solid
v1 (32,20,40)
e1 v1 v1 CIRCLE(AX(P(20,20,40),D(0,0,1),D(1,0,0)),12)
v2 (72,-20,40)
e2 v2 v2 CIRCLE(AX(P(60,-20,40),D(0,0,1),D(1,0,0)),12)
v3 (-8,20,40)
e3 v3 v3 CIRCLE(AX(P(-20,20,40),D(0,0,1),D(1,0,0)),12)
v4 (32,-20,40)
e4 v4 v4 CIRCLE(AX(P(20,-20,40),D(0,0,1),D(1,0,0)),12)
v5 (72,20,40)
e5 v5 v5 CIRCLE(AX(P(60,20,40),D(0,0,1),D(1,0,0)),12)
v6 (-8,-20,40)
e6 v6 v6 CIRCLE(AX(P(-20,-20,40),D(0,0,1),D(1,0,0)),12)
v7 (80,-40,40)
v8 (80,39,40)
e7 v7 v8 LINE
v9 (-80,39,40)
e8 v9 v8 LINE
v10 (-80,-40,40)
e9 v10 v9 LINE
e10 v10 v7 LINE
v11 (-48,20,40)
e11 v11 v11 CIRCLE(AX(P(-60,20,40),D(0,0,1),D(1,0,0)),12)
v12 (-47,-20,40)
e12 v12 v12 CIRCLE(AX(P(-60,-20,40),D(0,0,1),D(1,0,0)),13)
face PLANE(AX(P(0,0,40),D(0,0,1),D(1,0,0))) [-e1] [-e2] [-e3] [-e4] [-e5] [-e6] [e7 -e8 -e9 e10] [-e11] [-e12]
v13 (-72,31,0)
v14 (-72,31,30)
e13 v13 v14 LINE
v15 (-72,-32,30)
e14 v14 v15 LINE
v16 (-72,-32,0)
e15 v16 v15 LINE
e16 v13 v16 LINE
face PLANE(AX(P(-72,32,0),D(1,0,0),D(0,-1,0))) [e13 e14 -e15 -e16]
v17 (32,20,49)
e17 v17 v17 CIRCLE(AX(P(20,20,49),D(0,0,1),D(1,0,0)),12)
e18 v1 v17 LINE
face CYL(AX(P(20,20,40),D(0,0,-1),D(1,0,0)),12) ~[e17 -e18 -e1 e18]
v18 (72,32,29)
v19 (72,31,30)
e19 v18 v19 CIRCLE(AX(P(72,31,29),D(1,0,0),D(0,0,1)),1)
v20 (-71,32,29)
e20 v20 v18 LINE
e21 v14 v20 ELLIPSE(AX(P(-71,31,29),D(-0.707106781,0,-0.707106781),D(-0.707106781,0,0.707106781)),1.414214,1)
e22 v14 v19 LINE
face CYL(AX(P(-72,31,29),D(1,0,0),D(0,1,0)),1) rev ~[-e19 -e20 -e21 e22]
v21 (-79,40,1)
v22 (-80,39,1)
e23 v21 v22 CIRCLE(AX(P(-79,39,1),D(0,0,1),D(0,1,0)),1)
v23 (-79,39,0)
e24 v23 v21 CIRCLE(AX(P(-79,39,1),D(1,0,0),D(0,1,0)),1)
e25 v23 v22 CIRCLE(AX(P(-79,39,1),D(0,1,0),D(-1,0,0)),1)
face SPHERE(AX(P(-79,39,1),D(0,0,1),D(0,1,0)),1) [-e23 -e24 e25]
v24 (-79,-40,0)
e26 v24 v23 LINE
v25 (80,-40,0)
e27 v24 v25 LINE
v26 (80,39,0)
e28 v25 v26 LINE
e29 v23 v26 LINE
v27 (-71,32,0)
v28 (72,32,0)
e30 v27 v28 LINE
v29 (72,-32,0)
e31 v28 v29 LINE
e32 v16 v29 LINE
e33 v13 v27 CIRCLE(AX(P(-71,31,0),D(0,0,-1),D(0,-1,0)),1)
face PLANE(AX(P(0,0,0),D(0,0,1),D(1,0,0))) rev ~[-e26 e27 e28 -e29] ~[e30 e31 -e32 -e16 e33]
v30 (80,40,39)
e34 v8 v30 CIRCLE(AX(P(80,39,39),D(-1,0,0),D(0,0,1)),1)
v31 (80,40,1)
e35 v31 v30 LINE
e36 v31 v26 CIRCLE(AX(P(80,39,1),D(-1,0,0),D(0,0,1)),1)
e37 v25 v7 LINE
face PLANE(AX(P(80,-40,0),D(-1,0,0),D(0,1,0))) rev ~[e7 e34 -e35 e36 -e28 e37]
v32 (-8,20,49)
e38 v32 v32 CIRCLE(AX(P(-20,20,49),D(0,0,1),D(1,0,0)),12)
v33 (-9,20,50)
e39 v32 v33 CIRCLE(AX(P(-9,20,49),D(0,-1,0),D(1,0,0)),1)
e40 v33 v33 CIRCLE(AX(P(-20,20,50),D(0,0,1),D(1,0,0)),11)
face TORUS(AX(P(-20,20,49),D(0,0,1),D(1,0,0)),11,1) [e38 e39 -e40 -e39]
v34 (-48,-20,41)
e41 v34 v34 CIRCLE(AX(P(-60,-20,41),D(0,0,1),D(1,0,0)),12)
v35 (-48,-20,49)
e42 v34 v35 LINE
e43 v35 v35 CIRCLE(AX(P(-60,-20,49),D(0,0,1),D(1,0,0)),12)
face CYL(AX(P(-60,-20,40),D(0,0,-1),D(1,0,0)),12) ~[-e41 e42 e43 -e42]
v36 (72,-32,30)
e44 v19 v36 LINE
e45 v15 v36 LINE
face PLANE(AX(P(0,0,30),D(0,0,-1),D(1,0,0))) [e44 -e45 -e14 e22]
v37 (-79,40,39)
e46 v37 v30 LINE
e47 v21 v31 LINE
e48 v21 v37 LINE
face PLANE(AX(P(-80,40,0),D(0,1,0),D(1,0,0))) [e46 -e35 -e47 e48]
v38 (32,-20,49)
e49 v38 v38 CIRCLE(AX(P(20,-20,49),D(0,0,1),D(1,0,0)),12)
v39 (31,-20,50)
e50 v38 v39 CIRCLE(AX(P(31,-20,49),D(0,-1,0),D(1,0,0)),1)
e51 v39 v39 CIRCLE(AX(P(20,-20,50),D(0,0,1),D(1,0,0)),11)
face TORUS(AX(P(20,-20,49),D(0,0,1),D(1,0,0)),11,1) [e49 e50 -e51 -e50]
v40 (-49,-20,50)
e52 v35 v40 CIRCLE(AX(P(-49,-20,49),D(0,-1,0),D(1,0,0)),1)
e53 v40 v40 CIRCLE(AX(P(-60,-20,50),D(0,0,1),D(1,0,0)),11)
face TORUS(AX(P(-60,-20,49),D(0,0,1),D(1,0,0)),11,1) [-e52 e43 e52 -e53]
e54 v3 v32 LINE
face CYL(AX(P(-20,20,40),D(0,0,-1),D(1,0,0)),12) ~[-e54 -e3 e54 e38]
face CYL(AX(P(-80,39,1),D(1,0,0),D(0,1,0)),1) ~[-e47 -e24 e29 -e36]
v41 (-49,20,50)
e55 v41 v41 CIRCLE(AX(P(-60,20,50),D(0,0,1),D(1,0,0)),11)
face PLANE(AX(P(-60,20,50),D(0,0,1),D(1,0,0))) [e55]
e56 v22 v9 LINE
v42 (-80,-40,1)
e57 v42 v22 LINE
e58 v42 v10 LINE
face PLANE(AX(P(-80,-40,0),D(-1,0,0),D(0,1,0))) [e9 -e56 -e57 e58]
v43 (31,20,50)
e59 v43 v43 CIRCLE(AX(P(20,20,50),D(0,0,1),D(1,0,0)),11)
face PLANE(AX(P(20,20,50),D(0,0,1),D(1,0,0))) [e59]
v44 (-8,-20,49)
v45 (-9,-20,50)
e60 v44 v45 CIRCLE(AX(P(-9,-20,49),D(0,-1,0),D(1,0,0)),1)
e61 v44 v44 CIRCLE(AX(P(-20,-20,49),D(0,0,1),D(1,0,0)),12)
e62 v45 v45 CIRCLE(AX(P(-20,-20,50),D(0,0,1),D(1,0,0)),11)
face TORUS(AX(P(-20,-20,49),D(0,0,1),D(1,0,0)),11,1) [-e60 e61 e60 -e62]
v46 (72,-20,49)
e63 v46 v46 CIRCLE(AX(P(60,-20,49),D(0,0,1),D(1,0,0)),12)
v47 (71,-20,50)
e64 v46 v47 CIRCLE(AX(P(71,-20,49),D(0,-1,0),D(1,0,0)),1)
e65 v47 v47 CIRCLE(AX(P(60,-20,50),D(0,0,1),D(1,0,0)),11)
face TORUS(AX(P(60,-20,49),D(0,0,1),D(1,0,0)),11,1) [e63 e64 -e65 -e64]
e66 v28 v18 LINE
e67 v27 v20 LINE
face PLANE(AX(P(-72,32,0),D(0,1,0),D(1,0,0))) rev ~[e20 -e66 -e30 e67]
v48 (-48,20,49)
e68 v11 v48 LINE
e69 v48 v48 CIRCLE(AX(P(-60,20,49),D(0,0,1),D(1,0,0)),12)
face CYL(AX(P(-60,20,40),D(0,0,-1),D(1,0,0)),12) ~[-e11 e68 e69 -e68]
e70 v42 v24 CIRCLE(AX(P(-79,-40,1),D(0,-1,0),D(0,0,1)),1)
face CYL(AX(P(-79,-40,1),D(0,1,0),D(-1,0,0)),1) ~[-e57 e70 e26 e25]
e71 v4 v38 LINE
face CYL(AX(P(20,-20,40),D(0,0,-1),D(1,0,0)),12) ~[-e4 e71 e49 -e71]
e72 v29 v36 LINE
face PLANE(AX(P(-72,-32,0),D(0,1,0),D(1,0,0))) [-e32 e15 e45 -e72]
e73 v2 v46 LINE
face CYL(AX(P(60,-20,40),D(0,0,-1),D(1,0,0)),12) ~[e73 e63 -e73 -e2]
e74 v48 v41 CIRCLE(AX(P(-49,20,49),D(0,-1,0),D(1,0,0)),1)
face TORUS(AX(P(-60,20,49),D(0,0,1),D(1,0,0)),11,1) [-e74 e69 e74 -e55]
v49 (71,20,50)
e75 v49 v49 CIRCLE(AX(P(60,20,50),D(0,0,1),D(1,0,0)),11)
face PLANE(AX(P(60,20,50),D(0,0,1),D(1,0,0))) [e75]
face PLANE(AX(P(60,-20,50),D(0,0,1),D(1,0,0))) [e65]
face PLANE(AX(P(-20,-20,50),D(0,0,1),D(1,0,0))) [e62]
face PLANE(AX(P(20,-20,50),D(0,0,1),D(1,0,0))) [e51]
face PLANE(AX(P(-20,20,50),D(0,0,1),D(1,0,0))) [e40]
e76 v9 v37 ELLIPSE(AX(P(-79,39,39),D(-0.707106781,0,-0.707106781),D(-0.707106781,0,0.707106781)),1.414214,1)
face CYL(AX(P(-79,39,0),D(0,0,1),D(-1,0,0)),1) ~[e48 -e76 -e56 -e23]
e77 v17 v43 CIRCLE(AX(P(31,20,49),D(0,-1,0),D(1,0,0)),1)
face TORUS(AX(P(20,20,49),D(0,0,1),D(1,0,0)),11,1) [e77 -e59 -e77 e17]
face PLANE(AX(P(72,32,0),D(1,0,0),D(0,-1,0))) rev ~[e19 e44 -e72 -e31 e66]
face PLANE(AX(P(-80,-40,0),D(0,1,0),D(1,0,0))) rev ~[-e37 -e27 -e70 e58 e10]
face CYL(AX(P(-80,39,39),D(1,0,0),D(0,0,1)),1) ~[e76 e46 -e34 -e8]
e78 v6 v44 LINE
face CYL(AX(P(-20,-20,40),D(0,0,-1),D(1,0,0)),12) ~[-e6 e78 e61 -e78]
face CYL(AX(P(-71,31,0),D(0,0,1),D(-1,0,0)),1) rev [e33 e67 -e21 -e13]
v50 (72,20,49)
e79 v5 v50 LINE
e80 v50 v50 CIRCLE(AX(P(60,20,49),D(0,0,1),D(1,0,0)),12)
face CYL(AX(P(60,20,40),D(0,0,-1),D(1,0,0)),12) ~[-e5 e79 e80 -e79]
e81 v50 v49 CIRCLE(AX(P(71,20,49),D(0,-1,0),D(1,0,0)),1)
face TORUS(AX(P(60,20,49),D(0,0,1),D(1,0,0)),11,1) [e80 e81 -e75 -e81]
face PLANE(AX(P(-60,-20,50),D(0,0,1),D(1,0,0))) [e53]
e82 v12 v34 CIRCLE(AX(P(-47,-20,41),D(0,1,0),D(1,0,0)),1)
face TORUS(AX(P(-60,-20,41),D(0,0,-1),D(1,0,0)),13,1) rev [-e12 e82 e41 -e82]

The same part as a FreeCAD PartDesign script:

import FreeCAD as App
import Part
import Sketcher

V = App.Vector


def edges_at(feature, points):
    """Names of the edges that pass closest to the given points."""
    edges = feature.Shape.Edges
    near = lambda p: min(range(len(edges)), key=lambda i: edges[i].distToShape(Part.Vertex(*p))[0])
    return sorted({f"Edge{near(p) + 1}" for p in points})


def add_polygon(sketch, points):
    """Adds a closed chain of lines whose ends are joined by coincident constraints."""
    first, n = sketch.GeometryCount, len(points)
    for a, b in zip(points, points[1:] + points[:1]):
        sketch.addGeometry(Part.LineSegment(App.Vector(*a, 0), App.Vector(*b, 0)), False)
    for i in range(n):
        sketch.addConstraint(Sketcher.Constraint("Coincident", first + i, 2, first + (i + 1) % n, 1))

doc = App.newDocument("Part")
body = doc.addObject("PartDesign::Body", "Body")

# Sketch on XY plane
sketch1 = body.newObject("Sketcher::SketchObject", "Sketch")
sketch1.AttachmentSupport = (doc.getObject("XY_Plane"), [""])
sketch1.MapMode = "FlatFace"
add_polygon(sketch1, [(-80, 40), (-80, -40), (80, -40), (80, 40)])  # lines 0-3
sketch1.addConstraint([
    Sketcher.Constraint("Vertical", 0),
    Sketcher.Constraint("Horizontal", 1),
    Sketcher.Constraint("Vertical", 2),
    Sketcher.Constraint("Horizontal", 3),
    Sketcher.Constraint("Symmetric", 0, 2, 2, 2, -1, 1),
    Sketcher.Constraint("DistanceX", 1, 1, 1, 2, 160.0),
    Sketcher.Constraint("DistanceY", 0, 2, 0, 1, 80.0),
])
pad1 = body.newObject("PartDesign::Pad", "Pad")
pad1.Profile = sketch1
pad1.Length = 40

# Sketch on XY plane
sketch2 = body.newObject("Sketcher::SketchObject", "Sketch001")
sketch2.AttachmentSupport = (doc.getObject("XY_Plane"), [""])
sketch2.MapMode = "FlatFace"
add_polygon(sketch2, [(-72, -32), (-72, 32), (72, 32), (72, -32)])  # lines 0-3
sketch2.addConstraint([
    Sketcher.Constraint("Vertical", 0),
    Sketcher.Constraint("Horizontal", 1),
    Sketcher.Constraint("Vertical", 2),
    Sketcher.Constraint("Horizontal", 3),
    Sketcher.Constraint("Symmetric", 0, 2, 2, 2, -1, 1),
    Sketcher.Constraint("DistanceX", 1, 1, 1, 2, 144.0),
    Sketcher.Constraint("DistanceY", 0, 1, 0, 2, 64.0),
])
pocket1 = body.newObject("PartDesign::Pocket", "Pocket")
pocket1.Profile = sketch2
pocket1.Length = 30
pocket1.Reversed = True

# Sketch on XY plane
sketch3 = body.newObject("Sketcher::SketchObject", "Sketch002")
sketch3.AttachmentSupport = (doc.getObject("XY_Plane"), [""])
sketch3.MapMode = "FlatFace"
sketch3.AttachmentOffset = App.Placement(V(0, 0, 40), App.Rotation())
sketch3.addGeometry([
    Part.Circle(V(-60, 20, 0), V(0, 0, 1), 12),  # 0
    Part.Circle(V(-60, -20, 0), V(0, 0, 1), 12),  # 1
    Part.Circle(V(-20, 20, 0), V(0, 0, 1), 12),  # 2
    Part.Circle(V(-20, -20, 0), V(0, 0, 1), 12),  # 3
    Part.Circle(V(20, 20, 0), V(0, 0, 1), 12),  # 4
    Part.Circle(V(20, -20, 0), V(0, 0, 1), 12),  # 5
    Part.Circle(V(60, 20, 0), V(0, 0, 1), 12),  # 6
    Part.Circle(V(60, -20, 0), V(0, 0, 1), 12),  # 7
], False)
sketch3.addConstraint([
    Sketcher.Constraint("Equal", 0, 1),
    Sketcher.Constraint("Equal", 1, 2),
    Sketcher.Constraint("Equal", 2, 3),
    Sketcher.Constraint("Equal", 3, 4),
    Sketcher.Constraint("Equal", 4, 5),
    Sketcher.Constraint("Equal", 5, 6),
    Sketcher.Constraint("Equal", 6, 7),
    Sketcher.Constraint("Symmetric", 3, 3, 4, 3, -1, 1),
    Sketcher.Constraint("Symmetric", 2, 3, 5, 3, -1, 1),
    Sketcher.Constraint("Symmetric", 1, 3, 6, 3, -1, 1),
    Sketcher.Constraint("Symmetric", 0, 3, 7, 3, -1, 1),
    Sketcher.Constraint("Symmetric", 2, 3, 4, 3, -2),
    Sketcher.Constraint("Symmetric", 0, 3, 6, 3, -2),
    Sketcher.Constraint("Horizontal", 0, 3, 2, 3),
    Sketcher.Constraint("Diameter", 0, 24.0),
    Sketcher.Constraint("DistanceX", 0, 3, -1, 1, 60.0),
    Sketcher.Constraint("DistanceY", -1, 1, 0, 3, 20.0),
    Sketcher.Constraint("DistanceX", 2, 3, -1, 1, 20.0),
])
pad2 = body.newObject("PartDesign::Pad", "Pad001")
pad2.Profile = sketch3
pad2.Length = 10
doc.recompute()

fillet = body.newObject("PartDesign::Fillet", "Fillet")
fillet.Base = (pad2, edges_at(pad2, [(-72, 20, 50)]))
fillet.Radius = 1
doc.recompute()

fillet2 = body.newObject("PartDesign::Fillet", "Fillet001")
fillet2.Base = (fillet, edges_at(fillet, [(-32, 20, 50)]))
fillet2.Radius = 1
doc.recompute()

fillet3 = body.newObject("PartDesign::Fillet", "Fillet002")
fillet3.Base = (fillet2, edges_at(fillet2, [(8, 20, 50), (48, 20, 50)]))
fillet3.Radius = 1
doc.recompute()

fillet4 = body.newObject("PartDesign::Fillet", "Fillet003")
fillet4.Base = (fillet3, edges_at(fillet3, [
    (-48, -20, 45),
    (-72, -20, 40),
    (-72, -20, 50),
    (-32, -20, 50),
    (8, -20, 50),
    (48, -20, 50),
    (-80, 40, 20),
    (0, 40, 0),
    (0, 40, 40),
    (-80, 0, 0),
    (-72, 32, 15),
    (0, 32, 30),
]))
fillet4.Radius = 1

doc.recompute()
